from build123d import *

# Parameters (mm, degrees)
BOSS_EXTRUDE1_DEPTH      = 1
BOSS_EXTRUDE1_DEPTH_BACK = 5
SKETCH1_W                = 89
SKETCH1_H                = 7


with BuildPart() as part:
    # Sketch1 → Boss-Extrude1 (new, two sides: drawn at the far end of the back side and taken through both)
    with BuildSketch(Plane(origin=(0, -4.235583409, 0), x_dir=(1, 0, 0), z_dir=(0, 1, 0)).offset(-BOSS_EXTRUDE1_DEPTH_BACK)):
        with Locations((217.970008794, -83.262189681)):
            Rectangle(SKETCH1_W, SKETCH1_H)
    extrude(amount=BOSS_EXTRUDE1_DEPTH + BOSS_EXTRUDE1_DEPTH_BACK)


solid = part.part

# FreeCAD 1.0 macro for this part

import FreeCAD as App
import Part
import Sketcher


def add_polygon(sketch, points):
    """Adds a closed chain of lines whose ends are joined by coincident constraints."""
    first, n = sketch.GeometryCount, len(points)
    for a, b in zip(points, points[1:] + points[:1]):
        sketch.addGeometry(Part.LineSegment(App.Vector(*a, 0), App.Vector(*b, 0)), False)
    for i in range(n):
        sketch.addConstraint(Sketcher.Constraint("Coincident", first + i, 2, first + (i + 1) % n, 1))

doc = App.newDocument("Part")
body = doc.addObject("PartDesign::Body", "Body")

sketch1 = body.newObject("Sketcher::SketchObject", "Sketch")
sketch1.AttachmentSupport = (doc.getObject("XZ_Plane"), [""])
sketch1.MapMode = "FlatFace"
sketch1.AttachmentOffset = App.Placement(App.Vector(0, 0, 4.235583), App.Rotation())
add_polygon(sketch1, [(173.470009, 79.76219), (173.470009, 86.76219), (262.470009, 86.76219), (262.470009, 79.76219)])
sketch1.addConstraint([
    Sketcher.Constraint("Vertical", 0),
    Sketcher.Constraint("Horizontal", 1),
    Sketcher.Constraint("Vertical", 2),
    Sketcher.Constraint("Horizontal", 3),
    Sketcher.Constraint("DistanceX", 1, 1, 1, 2, 89.0),
    Sketcher.Constraint("DistanceY", 0, 1, 0, 2, 7.0),
    Sketcher.Constraint("DistanceX", -1, 1, 0, 2, 173.470009),
    Sketcher.Constraint("DistanceY", -1, 1, 0, 2, 86.76219),
])
pad1 = body.newObject("PartDesign::Pad", "Pad")
pad1.Profile = sketch1
pad1.Type = "TwoLengths"
pad1.Length = 1
pad1.Length2 = 5
pad1.Reversed = True

doc.recompute()
